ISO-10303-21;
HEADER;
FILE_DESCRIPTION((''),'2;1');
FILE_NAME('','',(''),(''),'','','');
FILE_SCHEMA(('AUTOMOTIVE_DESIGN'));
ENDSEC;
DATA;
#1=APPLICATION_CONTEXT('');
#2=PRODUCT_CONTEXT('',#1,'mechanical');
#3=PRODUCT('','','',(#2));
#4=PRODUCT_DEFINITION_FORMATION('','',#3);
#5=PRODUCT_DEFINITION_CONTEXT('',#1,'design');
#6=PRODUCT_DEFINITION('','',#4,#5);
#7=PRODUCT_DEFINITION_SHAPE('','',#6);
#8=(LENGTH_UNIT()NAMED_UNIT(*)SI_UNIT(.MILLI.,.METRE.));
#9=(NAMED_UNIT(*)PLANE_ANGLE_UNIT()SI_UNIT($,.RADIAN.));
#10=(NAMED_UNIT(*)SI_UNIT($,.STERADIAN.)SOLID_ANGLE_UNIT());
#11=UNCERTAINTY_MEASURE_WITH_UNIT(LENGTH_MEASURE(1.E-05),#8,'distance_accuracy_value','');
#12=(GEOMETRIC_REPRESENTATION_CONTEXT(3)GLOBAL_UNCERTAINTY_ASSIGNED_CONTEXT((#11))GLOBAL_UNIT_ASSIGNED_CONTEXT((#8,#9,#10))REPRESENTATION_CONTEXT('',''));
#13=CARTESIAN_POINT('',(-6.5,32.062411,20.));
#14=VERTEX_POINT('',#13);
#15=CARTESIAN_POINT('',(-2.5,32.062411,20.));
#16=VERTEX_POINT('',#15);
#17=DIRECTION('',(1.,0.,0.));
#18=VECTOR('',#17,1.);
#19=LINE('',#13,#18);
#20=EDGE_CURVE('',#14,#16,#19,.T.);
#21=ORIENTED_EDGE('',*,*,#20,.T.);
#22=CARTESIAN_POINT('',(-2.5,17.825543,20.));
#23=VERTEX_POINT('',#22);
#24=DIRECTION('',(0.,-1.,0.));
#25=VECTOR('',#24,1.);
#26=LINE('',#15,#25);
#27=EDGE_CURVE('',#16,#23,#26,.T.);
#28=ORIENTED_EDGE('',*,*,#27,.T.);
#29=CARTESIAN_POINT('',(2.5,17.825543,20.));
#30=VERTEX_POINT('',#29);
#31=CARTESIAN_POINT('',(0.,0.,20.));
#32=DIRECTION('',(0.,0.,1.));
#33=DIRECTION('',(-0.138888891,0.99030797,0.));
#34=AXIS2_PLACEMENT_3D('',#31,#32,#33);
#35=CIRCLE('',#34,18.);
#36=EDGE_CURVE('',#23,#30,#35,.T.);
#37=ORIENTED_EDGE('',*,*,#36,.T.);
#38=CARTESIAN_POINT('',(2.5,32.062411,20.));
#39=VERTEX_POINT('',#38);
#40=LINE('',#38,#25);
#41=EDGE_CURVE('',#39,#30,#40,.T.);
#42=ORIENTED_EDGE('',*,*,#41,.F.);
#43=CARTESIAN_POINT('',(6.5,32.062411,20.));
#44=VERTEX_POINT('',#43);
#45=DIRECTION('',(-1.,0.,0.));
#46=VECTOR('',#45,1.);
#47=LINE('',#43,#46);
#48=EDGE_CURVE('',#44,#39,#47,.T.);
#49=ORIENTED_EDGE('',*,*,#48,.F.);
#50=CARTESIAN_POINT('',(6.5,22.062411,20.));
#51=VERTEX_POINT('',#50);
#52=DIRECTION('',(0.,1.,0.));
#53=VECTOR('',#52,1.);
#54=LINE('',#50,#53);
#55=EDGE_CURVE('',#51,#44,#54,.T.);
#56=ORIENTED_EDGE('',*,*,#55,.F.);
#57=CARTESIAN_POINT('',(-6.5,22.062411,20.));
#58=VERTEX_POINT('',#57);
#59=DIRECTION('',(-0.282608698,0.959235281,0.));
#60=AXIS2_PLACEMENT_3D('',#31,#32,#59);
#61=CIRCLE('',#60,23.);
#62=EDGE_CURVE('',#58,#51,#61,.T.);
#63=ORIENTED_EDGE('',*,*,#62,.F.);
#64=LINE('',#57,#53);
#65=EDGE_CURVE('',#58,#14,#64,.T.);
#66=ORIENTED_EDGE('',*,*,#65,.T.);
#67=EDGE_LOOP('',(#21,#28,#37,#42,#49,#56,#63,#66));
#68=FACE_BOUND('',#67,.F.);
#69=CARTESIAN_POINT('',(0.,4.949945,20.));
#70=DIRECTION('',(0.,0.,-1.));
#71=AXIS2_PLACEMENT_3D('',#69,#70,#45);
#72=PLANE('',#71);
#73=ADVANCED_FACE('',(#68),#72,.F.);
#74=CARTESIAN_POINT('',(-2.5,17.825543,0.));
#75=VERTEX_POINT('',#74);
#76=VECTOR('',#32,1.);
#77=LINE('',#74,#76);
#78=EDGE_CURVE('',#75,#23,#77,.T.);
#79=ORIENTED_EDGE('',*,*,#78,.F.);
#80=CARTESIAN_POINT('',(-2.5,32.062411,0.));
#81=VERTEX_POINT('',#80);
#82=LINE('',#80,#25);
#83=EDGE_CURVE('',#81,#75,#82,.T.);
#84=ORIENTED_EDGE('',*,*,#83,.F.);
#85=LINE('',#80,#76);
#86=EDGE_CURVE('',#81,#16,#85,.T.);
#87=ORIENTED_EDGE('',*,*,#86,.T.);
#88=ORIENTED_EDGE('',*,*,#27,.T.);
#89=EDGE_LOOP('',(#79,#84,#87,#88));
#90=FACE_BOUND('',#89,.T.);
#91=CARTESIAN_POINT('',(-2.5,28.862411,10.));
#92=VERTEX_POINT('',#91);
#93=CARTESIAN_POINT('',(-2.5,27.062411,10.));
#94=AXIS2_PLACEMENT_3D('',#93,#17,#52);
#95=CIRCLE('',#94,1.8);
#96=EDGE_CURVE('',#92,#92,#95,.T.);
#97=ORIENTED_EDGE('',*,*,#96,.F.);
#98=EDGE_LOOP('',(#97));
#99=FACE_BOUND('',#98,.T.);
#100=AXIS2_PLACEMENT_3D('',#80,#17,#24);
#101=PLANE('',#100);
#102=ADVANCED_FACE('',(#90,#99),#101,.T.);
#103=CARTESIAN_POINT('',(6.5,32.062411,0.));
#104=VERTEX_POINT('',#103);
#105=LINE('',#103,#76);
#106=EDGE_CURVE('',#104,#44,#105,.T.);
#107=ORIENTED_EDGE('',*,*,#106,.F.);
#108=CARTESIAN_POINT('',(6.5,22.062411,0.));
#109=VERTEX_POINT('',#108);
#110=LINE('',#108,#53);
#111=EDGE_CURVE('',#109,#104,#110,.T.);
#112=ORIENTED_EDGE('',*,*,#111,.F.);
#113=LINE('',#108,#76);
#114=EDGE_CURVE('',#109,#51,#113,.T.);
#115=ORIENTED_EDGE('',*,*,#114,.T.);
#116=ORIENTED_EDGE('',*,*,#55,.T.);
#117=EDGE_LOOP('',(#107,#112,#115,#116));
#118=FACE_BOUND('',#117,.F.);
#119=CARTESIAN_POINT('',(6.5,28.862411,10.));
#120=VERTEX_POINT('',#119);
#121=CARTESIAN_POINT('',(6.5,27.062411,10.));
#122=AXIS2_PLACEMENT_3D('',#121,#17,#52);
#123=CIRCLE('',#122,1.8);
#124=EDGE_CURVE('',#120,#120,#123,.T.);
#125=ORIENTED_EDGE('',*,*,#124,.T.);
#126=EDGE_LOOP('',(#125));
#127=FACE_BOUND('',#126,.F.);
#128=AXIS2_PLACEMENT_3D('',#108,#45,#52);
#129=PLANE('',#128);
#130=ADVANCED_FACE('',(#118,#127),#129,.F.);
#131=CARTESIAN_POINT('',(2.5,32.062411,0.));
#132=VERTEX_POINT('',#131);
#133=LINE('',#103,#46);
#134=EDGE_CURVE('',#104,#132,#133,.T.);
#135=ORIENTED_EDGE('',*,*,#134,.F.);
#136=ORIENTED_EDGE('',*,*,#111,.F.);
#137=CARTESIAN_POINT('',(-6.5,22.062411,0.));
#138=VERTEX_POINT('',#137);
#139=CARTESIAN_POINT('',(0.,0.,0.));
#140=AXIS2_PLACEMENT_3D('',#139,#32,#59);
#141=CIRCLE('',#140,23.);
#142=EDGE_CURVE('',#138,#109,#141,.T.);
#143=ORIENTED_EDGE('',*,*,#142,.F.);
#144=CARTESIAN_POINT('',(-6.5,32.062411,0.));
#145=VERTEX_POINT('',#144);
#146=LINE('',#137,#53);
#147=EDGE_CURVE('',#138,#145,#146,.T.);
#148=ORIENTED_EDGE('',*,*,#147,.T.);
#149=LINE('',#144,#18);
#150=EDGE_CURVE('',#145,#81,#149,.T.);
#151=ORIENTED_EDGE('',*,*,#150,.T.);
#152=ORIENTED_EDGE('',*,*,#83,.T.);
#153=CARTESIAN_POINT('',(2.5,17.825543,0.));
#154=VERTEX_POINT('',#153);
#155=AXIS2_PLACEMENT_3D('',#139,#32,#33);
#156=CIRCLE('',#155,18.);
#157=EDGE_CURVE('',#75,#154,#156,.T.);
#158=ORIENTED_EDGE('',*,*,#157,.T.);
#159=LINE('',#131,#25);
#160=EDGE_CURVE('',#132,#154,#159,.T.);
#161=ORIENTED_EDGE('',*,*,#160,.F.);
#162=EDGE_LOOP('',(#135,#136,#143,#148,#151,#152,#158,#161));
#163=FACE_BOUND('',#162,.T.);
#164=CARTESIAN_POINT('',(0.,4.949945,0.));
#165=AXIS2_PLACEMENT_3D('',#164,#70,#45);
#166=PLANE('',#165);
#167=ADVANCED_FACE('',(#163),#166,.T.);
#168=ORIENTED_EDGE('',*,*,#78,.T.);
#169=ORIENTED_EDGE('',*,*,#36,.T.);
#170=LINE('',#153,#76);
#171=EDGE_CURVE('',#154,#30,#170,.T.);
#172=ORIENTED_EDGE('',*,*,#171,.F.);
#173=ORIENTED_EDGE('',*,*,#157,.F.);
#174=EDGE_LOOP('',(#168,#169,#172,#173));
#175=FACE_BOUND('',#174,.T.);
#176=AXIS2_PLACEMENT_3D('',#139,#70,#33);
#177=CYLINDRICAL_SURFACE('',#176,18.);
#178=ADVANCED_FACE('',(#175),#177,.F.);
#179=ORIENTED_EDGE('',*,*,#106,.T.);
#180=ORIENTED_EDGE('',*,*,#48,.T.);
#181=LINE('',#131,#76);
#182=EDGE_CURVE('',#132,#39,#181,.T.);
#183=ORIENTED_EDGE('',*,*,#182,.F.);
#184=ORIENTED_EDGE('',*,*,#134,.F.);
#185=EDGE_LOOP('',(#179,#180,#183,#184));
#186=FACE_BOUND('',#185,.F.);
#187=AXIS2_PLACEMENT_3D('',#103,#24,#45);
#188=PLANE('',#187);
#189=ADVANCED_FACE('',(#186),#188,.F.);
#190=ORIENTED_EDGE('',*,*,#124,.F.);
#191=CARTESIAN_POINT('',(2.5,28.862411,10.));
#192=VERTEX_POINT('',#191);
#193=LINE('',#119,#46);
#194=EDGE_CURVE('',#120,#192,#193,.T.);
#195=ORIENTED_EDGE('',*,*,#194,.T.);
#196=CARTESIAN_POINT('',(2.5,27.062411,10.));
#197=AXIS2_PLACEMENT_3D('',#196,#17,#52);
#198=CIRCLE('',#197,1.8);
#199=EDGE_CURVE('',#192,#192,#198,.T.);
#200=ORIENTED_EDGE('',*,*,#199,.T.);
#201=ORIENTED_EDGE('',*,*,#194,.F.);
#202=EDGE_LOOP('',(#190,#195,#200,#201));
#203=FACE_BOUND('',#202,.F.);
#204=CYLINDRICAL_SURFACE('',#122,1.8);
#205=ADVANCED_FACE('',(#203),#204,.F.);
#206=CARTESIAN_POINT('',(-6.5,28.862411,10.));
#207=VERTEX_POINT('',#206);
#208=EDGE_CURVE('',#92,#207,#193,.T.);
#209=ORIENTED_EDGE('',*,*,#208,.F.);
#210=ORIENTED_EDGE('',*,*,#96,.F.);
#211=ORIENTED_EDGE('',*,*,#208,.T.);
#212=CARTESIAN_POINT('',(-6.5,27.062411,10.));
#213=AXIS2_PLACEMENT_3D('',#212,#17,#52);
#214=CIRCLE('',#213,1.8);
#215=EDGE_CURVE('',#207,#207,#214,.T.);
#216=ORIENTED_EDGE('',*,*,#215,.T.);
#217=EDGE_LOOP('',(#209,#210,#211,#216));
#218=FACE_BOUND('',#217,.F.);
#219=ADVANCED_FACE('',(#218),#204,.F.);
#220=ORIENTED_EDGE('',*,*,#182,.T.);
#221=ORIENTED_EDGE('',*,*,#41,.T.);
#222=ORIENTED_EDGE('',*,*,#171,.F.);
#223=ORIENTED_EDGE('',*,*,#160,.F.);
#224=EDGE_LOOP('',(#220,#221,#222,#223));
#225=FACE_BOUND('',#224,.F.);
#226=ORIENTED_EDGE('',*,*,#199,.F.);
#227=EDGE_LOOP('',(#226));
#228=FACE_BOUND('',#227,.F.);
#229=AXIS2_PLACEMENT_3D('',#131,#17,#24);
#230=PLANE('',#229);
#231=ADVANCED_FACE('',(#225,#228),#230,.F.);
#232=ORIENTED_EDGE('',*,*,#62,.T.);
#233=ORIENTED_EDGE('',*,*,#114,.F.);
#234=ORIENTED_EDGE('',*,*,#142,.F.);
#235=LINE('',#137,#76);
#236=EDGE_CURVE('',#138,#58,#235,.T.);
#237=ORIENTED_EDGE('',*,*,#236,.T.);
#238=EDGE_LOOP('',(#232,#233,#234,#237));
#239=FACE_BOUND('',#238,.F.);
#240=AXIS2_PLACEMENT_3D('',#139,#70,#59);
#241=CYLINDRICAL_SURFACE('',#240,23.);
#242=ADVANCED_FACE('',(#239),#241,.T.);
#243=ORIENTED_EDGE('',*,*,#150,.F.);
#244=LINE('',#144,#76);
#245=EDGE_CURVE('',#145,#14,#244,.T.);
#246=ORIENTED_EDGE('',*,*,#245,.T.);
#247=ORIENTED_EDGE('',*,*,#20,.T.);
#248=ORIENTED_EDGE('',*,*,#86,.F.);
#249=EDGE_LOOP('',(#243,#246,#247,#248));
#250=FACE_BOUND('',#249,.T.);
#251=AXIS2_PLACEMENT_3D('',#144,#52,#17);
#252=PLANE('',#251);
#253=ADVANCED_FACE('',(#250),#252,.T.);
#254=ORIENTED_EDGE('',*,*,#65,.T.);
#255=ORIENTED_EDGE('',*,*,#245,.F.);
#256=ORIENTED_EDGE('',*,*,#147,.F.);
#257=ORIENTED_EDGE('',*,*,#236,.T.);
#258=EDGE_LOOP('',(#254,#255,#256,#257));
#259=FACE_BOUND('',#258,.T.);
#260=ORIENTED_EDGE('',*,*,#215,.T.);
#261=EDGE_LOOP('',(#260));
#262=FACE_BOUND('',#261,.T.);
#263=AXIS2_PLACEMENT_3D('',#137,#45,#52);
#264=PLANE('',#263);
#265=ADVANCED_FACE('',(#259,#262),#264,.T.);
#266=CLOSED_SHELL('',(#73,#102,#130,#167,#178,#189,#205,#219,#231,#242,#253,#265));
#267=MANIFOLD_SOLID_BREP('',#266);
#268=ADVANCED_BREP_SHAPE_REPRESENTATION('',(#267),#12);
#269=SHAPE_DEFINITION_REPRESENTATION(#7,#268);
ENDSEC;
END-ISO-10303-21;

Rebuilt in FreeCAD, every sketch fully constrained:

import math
import FreeCAD as App
import Part
import Sketcher

doc = App.newDocument("Part")
params = doc.addObject("Spreadsheet::Sheet", "Params")
for row, (alias, value) in enumerate([
    ("sketch1_radius", "18 mm"),
    ("sketch1_radius2", "23 mm"),
    ("sketch1_width", "4 mm"),
    ("sketch1_height", "10 mm"),
    ("pad1_length", "20 mm"),
    ("sketch2_diameter", "3.6 mm"),
], start=1):
    params.set(f"A{row}", alias)
    params.set(f"B{row}", "=" + value)
    params.setAlias(f"B{row}", alias)

body = doc.addObject("PartDesign::Body", "Body")

# Sketch on XY plane
sketch1 = body.newObject("Sketcher::SketchObject", "Sketch")
sketch1.AttachmentSupport = (doc.getObject("XY_Plane"), [""])
sketch1.MapMode = "FlatFace"
sketch1.addGeometry([
    Part.ArcOfCircle(Part.Circle(App.Vector(0, 0, 0), App.Vector(0, 0, 1), 18), math.radians(97.983556), math.radians(442.016444)),  # 0
    Part.LineSegment(App.Vector(-2.5, 17.825543, 0), App.Vector(-2.5, 32.062411, 0)),  # 1
    Part.LineSegment(App.Vector(-2.5, 32.062411, 0), App.Vector(-6.5, 32.062411, 0)),  # 2
    Part.LineSegment(App.Vector(-6.5, 32.062411, 0), App.Vector(-6.5, 22.062411, 0)),  # 3
    Part.ArcOfCircle(Part.Circle(App.Vector(0, 0, 0), App.Vector(0, 0, 1), 23), math.radians(106.415962), math.radians(433.584038)),  # 4
    Part.LineSegment(App.Vector(6.5, 22.062411, 0), App.Vector(6.5, 32.062411, 0)),  # 5
    Part.LineSegment(App.Vector(6.5, 32.062411, 0), App.Vector(2.5, 32.062411, 0)),  # 6
    Part.LineSegment(App.Vector(2.5, 32.062411, 0), App.Vector(2.5, 17.825543, 0)),  # 7
], False)
sketch1.addConstraint([
    Sketcher.Constraint("Coincident", 0, 1, 1, 1),
    Sketcher.Constraint("Coincident", 1, 2, 2, 1),
    Sketcher.Constraint("Coincident", 2, 2, 3, 1),
    Sketcher.Constraint("Coincident", 3, 2, 4, 1),
    Sketcher.Constraint("Coincident", 4, 2, 5, 1),
    Sketcher.Constraint("Coincident", 5, 2, 6, 1),
    Sketcher.Constraint("Coincident", 6, 2, 7, 1),
    Sketcher.Constraint("Coincident", 7, 2, 0, 2),
    Sketcher.Constraint("Vertical", 1),
    Sketcher.Constraint("Horizontal", 2),
    Sketcher.Constraint("Vertical", 3),
    Sketcher.Constraint("Vertical", 5),
    Sketcher.Constraint("Horizontal", 6),
    Sketcher.Constraint("Vertical", 7),
    Sketcher.Constraint("Coincident", 0, 3, -1, 1),
    Sketcher.Constraint("Coincident", 4, 3, -1, 1),
    Sketcher.Constraint("Symmetric", 2, 2, 5, 2, -2),
    Sketcher.Constraint("Horizontal", 0, 1, 7, 2),
    Sketcher.Constraint("Radius", 0, 18.0),
    Sketcher.Constraint("Radius", 4, 23.0),
    Sketcher.Constraint("DistanceX", 2, 2, 2, 1, 4.0),
    Sketcher.Constraint("DistanceY", 3, 2, 3, 1, 10.0),
    Sketcher.Constraint("DistanceX", 0, 1, 4, 2, 9.0),
])
sketch1.setExpression("Constraints[18]", "Params.sketch1_radius")
sketch1.setExpression("Constraints[19]", "Params.sketch1_radius2")
sketch1.setExpression("Constraints[20]", "Params.sketch1_width")
sketch1.setExpression("Constraints[21]", "Params.sketch1_height")
pad1 = body.newObject("PartDesign::Pad", "Pad")
pad1.Profile = sketch1
pad1.setExpression("Length", "Params.pad1_length")

# Sketch on YZ plane
sketch2 = body.newObject("Sketcher::SketchObject", "Sketch001")
sketch2.AttachmentSupport = (doc.getObject("YZ_Plane"), [""])
sketch2.MapMode = "FlatFace"
sketch2.AttachmentOffset = App.Placement(App.Vector(0, 0, 6.5), App.Rotation())
sketch2.addGeometry(Part.Circle(App.Vector(27.062411, 10, 0), App.Vector(0, 0, 1), 1.8), False)
sketch2.addConstraint([
    Sketcher.Constraint("Diameter", 0, 3.6),
    Sketcher.Constraint("DistanceY", -1, 1, 0, 3, 10.0),
    Sketcher.Constraint("DistanceX", -1, 1, 0, 3, 27.062411),
])
sketch2.setExpression("Constraints[0]", "Params.sketch2_diameter")
pocket1 = body.newObject("PartDesign::Pocket", "Pocket")
pocket1.Profile = sketch2
pocket1.Type = "ThroughAll"

doc.recompute()
